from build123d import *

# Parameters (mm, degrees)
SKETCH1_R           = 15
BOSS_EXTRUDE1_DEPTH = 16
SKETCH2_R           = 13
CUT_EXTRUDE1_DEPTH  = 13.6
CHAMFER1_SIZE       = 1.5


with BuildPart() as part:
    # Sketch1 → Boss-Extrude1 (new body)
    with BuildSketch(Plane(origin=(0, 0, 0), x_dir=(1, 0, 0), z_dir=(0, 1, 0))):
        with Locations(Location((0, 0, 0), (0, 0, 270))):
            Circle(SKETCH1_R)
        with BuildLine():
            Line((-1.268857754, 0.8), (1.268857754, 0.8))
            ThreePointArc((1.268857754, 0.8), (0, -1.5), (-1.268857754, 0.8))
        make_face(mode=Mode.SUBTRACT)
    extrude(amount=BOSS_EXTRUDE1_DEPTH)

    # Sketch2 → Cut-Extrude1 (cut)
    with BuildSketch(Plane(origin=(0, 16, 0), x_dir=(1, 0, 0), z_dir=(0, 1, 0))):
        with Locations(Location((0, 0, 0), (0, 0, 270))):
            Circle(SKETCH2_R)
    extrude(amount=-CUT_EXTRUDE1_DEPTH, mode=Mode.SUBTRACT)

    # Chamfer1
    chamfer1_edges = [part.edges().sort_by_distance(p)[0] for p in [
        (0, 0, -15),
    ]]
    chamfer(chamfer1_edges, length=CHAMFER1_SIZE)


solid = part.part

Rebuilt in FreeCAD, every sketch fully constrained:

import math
import FreeCAD as App
import Part
import Sketcher


def edges_at(feature, points):
    """Names of the edges that pass closest to the given points."""
    edges = feature.Shape.Edges
    near = lambda p: min(range(len(edges)), key=lambda i: edges[i].distToShape(Part.Vertex(*p))[0])
    return sorted({f"Edge{near(p) + 1}" for p in points})

doc = App.newDocument("Part")
body = doc.addObject("PartDesign::Body", "Body")

# Sketch on XZ plane
sketch1 = body.newObject("Sketcher::SketchObject", "Sketch")
sketch1.AttachmentSupport = (doc.getObject("XZ_Plane"), [""])
sketch1.MapMode = "FlatFace"
sketch1.addGeometry(Part.Circle(App.Vector(0, 0, 0), App.Vector(0, 0, 1), 15), False)
sketch1.addGeometry(Part.ArcOfCircle(Part.Circle(App.Vector(0, 0, 0), App.Vector(0, 0, 1), 1.5), math.radians(-32), math.radians(212)), False)
sketch1.addGeometry(Part.LineSegment(App.Vector(-1.3, -0.8, 0), App.Vector(1.3, -0.8, 0)), False)
sketch1.addConstraint(Sketcher.Constraint("Coincident", 1, 1, 2, 2))
sketch1.addConstraint(Sketcher.Constraint("Coincident", 2, 1, 1, 2))
sketch1.addConstraint(Sketcher.Constraint("Horizontal", 2))
sketch1.addConstraint(Sketcher.Constraint("Coincident", 0, 3, -1, 1))
sketch1.addConstraint(Sketcher.Constraint("Coincident", 1, 3, -1, 1))
sketch1.addConstraint(Sketcher.Constraint("Diameter", 0, 30.0))
sketch1.addConstraint(Sketcher.Constraint("Radius", 1, 1.5))
sketch1.addConstraint(Sketcher.Constraint("DistanceY", 1, 1, -1, 1, 0.8))
pad1 = body.newObject("PartDesign::Pad", "Pad")
pad1.Profile = sketch1
pad1.Length = 16
pad1.Reversed = True

# Sketch on XZ plane
sketch2 = body.newObject("Sketcher::SketchObject", "Sketch001")
sketch2.AttachmentSupport = (doc.getObject("XZ_Plane"), [""])
sketch2.MapMode = "FlatFace"
sketch2.AttachmentOffset = App.Placement(App.Vector(0, 0, -16), App.Rotation())
sketch2.addGeometry(Part.Circle(App.Vector(0, 0, 0), App.Vector(0, 0, 1), 13), False)
sketch2.addConstraint(Sketcher.Constraint("Coincident", 0, 3, -1, 1))
sketch2.addConstraint(Sketcher.Constraint("Diameter", 0, 26.0))
pocket1 = body.newObject("PartDesign::Pocket", "Pocket")
pocket1.Profile = sketch2
pocket1.Length = 13.6
pocket1.Reversed = True
doc.recompute()

chamfer = body.newObject("PartDesign::Chamfer", "Chamfer")
chamfer.Base = (pocket1, edges_at(pocket1, [(0, 0, -15)]))
chamfer.Size = 1.5

doc.recompute()
